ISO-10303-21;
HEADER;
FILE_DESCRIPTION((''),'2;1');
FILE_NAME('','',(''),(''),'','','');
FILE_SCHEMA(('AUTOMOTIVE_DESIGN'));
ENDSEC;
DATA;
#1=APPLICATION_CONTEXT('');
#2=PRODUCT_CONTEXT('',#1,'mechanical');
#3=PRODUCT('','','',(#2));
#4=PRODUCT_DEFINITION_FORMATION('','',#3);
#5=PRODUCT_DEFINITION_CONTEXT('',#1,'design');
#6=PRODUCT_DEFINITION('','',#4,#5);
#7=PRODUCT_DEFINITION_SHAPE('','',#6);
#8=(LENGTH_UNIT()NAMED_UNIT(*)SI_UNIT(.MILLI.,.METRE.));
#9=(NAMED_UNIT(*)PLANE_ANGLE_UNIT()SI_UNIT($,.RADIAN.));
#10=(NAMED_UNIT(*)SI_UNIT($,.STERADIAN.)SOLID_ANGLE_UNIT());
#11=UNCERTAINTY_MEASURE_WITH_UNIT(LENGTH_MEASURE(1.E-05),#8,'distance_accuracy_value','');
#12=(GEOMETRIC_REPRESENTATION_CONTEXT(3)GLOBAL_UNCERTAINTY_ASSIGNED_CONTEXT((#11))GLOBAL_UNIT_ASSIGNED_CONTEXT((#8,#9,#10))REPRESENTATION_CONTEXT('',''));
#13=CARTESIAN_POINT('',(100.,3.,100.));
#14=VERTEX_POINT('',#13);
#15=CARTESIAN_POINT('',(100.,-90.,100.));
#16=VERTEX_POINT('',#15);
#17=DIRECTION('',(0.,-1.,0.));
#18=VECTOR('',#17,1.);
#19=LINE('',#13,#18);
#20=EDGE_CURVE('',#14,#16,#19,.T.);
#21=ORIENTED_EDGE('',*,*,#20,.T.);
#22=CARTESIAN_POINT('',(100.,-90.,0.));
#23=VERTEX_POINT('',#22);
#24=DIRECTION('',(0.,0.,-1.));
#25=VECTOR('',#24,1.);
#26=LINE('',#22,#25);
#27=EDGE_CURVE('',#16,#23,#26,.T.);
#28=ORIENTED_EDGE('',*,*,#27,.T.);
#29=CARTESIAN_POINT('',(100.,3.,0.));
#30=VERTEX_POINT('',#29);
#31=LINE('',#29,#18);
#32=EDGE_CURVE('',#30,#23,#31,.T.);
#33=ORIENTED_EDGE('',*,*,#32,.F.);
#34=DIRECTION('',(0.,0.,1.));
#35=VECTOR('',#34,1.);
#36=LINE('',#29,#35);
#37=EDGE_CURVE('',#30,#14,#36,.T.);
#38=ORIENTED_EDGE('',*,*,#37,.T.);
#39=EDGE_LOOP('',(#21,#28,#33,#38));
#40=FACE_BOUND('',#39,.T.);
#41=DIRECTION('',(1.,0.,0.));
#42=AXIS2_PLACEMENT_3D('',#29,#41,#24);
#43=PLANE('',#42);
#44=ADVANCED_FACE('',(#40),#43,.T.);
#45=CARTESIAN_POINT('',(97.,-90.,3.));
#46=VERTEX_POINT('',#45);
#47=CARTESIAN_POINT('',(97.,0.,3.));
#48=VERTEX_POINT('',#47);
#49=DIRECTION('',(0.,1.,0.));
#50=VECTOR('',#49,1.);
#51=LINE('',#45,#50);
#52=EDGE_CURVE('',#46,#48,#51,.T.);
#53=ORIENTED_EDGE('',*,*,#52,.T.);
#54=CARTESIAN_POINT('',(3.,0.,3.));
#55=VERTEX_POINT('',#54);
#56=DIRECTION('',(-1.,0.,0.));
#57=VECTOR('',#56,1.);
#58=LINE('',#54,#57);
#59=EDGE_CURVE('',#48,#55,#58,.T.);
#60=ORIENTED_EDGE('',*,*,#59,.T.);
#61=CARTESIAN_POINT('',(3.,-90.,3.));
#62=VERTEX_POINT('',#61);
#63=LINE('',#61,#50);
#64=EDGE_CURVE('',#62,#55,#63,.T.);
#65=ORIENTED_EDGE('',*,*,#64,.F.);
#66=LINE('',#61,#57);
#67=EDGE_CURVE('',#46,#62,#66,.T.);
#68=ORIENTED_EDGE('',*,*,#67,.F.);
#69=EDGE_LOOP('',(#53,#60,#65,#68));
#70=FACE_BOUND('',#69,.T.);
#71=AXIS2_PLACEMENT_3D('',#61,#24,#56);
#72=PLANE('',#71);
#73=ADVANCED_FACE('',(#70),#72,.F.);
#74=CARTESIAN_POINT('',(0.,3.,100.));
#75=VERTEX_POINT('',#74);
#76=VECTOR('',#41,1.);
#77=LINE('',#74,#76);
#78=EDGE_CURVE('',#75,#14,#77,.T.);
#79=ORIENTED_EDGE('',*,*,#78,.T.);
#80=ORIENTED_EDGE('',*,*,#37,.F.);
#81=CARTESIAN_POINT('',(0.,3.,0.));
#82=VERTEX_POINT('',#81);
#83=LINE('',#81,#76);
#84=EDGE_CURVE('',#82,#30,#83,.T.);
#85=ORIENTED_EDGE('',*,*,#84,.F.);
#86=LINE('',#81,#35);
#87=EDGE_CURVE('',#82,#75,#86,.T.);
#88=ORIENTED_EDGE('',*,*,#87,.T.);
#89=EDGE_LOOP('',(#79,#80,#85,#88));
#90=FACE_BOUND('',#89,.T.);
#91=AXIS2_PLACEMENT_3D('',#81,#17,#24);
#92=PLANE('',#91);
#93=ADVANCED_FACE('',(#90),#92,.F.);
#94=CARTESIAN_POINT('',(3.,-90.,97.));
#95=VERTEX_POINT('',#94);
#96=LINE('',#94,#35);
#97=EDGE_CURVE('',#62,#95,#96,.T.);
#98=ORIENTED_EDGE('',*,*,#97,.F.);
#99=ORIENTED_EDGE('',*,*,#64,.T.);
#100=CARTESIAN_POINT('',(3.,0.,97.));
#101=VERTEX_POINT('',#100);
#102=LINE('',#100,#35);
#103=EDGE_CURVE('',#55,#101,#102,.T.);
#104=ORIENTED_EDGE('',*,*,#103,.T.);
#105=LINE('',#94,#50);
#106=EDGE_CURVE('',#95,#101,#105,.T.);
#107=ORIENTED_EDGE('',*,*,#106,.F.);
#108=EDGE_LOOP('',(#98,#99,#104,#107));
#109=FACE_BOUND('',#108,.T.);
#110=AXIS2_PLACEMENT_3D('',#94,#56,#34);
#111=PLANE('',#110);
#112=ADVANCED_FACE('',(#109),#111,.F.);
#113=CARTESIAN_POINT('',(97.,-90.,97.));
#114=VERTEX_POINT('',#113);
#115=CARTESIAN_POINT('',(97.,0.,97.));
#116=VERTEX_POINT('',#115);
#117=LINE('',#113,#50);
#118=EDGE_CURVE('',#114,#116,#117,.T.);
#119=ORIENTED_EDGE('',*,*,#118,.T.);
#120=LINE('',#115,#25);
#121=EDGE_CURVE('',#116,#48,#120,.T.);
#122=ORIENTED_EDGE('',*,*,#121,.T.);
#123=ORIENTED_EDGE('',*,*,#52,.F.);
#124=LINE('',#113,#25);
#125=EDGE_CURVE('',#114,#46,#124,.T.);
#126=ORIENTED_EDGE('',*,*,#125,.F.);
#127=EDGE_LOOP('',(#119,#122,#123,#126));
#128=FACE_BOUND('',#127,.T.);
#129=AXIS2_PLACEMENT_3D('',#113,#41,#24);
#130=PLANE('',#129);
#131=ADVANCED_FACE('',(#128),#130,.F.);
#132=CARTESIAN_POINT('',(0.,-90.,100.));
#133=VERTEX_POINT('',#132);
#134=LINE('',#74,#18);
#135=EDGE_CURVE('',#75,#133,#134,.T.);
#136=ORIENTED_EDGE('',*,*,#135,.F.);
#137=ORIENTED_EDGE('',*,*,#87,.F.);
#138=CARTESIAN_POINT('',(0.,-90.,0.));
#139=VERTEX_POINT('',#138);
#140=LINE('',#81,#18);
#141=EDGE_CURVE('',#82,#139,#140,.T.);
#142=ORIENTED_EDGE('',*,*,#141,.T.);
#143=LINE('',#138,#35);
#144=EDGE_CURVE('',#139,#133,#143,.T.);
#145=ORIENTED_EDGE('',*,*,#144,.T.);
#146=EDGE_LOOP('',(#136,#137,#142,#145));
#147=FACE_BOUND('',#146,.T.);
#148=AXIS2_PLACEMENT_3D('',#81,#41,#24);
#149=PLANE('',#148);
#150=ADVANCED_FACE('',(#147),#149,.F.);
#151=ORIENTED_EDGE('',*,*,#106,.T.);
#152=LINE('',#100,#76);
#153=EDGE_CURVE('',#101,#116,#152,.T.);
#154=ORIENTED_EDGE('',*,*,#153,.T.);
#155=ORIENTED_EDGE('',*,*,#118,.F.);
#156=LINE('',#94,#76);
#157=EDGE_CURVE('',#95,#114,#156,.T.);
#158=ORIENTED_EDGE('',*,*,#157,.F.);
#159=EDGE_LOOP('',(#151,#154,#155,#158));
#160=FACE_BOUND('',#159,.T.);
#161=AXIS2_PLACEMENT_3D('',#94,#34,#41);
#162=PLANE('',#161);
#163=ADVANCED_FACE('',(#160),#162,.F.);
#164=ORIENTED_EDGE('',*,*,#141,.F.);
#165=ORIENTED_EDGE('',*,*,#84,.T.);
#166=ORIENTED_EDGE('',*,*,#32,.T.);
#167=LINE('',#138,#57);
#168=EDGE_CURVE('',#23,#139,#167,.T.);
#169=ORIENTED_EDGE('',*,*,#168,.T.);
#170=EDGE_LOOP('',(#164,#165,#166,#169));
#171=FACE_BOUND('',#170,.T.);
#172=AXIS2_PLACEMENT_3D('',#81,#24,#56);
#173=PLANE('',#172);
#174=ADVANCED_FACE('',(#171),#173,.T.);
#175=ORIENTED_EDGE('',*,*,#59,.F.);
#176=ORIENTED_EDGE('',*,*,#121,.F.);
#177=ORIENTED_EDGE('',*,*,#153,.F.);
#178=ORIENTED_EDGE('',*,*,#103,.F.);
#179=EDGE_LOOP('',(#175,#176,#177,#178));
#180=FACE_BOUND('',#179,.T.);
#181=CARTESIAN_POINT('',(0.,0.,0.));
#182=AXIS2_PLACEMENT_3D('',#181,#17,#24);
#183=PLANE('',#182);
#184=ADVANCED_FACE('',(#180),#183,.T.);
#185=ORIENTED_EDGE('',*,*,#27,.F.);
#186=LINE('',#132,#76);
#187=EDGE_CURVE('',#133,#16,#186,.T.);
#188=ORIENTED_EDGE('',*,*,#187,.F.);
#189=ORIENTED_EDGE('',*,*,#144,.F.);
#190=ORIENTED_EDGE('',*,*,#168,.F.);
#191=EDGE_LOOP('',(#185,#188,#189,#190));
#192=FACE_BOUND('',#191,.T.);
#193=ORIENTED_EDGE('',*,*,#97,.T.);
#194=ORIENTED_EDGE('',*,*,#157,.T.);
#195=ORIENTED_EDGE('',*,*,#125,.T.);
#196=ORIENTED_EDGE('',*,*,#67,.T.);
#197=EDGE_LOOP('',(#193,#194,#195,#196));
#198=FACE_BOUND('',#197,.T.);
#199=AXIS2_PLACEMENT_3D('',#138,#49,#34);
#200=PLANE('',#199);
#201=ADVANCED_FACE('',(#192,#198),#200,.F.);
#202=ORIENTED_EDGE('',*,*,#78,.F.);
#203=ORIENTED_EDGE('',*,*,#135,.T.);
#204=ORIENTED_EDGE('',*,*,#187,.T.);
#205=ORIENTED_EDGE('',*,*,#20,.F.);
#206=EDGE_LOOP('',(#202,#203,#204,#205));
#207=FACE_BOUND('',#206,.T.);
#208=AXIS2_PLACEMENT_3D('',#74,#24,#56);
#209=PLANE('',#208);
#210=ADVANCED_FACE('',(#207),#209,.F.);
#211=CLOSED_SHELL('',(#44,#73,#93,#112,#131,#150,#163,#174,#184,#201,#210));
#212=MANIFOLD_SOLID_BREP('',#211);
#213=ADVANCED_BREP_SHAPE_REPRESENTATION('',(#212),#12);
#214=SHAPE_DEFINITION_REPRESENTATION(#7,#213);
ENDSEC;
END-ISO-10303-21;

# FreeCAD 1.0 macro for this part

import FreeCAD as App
import Part
import Sketcher

V = App.Vector
Q = App.Units.Quantity

doc = App.newDocument("Part")
body = doc.addObject("PartDesign::Body", "Body")

sketch1 = doc.addObject("Sketcher::SketchObject", "Sketch")
body.addObject(sketch1)
sketch1.AttachmentSupport = (doc.XZ_Plane, [""])
sketch1.MapMode = "FlatFace"
sketch1.addGeometry(Part.LineSegment(V(0, 0, 0), V(0, 100, 0)), False)
sketch1.addGeometry(Part.LineSegment(V(0, 100, 0), V(100, 100, 0)), False)
sketch1.addGeometry(Part.LineSegment(V(100, 100, 0), V(100, 0, 0)), False)
sketch1.addGeometry(Part.LineSegment(V(100, 0, 0), V(0, 0, 0)), False)
sketch1.addConstraint(Sketcher.Constraint("Coincident", 0, 2, 1, 1))
sketch1.addConstraint(Sketcher.Constraint("Coincident", 1, 2, 2, 1))
sketch1.addConstraint(Sketcher.Constraint("Coincident", 2, 2, 3, 1))
sketch1.addConstraint(Sketcher.Constraint("Coincident", 3, 2, 0, 1))
sketch1.addConstraint(Sketcher.Constraint("Vertical", 0))
sketch1.addConstraint(Sketcher.Constraint("Horizontal", 1))
sketch1.addConstraint(Sketcher.Constraint("Vertical", 2))
sketch1.addConstraint(Sketcher.Constraint("Horizontal", 3))
sketch1.addConstraint(Sketcher.Constraint("Coincident", 3, 2, -1, 1))
sketch1.addConstraint(Sketcher.Constraint("Equal", 3, 0))
sketch1.addConstraint(Sketcher.Constraint("DistanceX", 1, 1, 1, 2, Q("100 mm")))
pad1 = doc.addObject("PartDesign::Pad", "Pad")
body.addObject(pad1)
pad1.Profile = sketch1
pad1.Length = 3
pad1.Reversed = True

sketch2 = doc.addObject("Sketcher::SketchObject", "Sketch001")
body.addObject(sketch2)
sketch2.AttachmentSupport = (doc.XZ_Plane, [""])
sketch2.MapMode = "FlatFace"
sketch2.addGeometry(Part.LineSegment(V(0, 0, 0), V(0, 100, 0)), False)
sketch2.addGeometry(Part.LineSegment(V(0, 100, 0), V(100, 100, 0)), False)
sketch2.addGeometry(Part.LineSegment(V(100, 100, 0), V(100, 0, 0)), False)
sketch2.addGeometry(Part.LineSegment(V(100, 0, 0), V(0, 0, 0)), False)
sketch2.addGeometry(Part.LineSegment(V(97, 97, 0), V(3, 97, 0)), False)
sketch2.addGeometry(Part.LineSegment(V(3, 97, 0), V(3, 3, 0)), False)
sketch2.addGeometry(Part.LineSegment(V(3, 3, 0), V(97, 3, 0)), False)
sketch2.addGeometry(Part.LineSegment(V(97, 3, 0), V(97, 97, 0)), False)
sketch2.addConstraint(Sketcher.Constraint("Coincident", 0, 2, 1, 1))
sketch2.addConstraint(Sketcher.Constraint("Coincident", 1, 2, 2, 1))
sketch2.addConstraint(Sketcher.Constraint("Coincident", 2, 2, 3, 1))
sketch2.addConstraint(Sketcher.Constraint("Coincident", 3, 2, 0, 1))
sketch2.addConstraint(Sketcher.Constraint("Coincident", 4, 2, 5, 1))
sketch2.addConstraint(Sketcher.Constraint("Coincident", 5, 2, 6, 1))
sketch2.addConstraint(Sketcher.Constraint("Coincident", 6, 2, 7, 1))
sketch2.addConstraint(Sketcher.Constraint("Coincident", 7, 2, 4, 1))
sketch2.addConstraint(Sketcher.Constraint("Vertical", 0))
sketch2.addConstraint(Sketcher.Constraint("Horizontal", 1))
sketch2.addConstraint(Sketcher.Constraint("Vertical", 2))
sketch2.addConstraint(Sketcher.Constraint("Horizontal", 3))
sketch2.addConstraint(Sketcher.Constraint("Horizontal", 4))
sketch2.addConstraint(Sketcher.Constraint("Vertical", 5))
sketch2.addConstraint(Sketcher.Constraint("Horizontal", 6))
sketch2.addConstraint(Sketcher.Constraint("Vertical", 7))
sketch2.addConstraint(Sketcher.Constraint("Coincident", 3, 2, -1, 1))
sketch2.addConstraint(Sketcher.Constraint("Equal", 3, 0))
sketch2.addConstraint(Sketcher.Constraint("Equal", 6, 5))
sketch2.addConstraint(Sketcher.Constraint("DistanceX", 1, 1, 1, 2, Q("100 mm")))
sketch2.addConstraint(Sketcher.Constraint("DistanceX", 4, 2, 4, 1, Q("94 mm")))
sketch2.addConstraint(Sketcher.Constraint("DistanceX", -1, 1, 4, 2, Q("3 mm")))
sketch2.addConstraint(Sketcher.Constraint("DistanceY", -1, 1, 4, 2, Q("97 mm")))
pad2 = doc.addObject("PartDesign::Pad", "Pad001")
body.addObject(pad2)
pad2.Profile = sketch2
pad2.Length = 90

doc.recompute()
